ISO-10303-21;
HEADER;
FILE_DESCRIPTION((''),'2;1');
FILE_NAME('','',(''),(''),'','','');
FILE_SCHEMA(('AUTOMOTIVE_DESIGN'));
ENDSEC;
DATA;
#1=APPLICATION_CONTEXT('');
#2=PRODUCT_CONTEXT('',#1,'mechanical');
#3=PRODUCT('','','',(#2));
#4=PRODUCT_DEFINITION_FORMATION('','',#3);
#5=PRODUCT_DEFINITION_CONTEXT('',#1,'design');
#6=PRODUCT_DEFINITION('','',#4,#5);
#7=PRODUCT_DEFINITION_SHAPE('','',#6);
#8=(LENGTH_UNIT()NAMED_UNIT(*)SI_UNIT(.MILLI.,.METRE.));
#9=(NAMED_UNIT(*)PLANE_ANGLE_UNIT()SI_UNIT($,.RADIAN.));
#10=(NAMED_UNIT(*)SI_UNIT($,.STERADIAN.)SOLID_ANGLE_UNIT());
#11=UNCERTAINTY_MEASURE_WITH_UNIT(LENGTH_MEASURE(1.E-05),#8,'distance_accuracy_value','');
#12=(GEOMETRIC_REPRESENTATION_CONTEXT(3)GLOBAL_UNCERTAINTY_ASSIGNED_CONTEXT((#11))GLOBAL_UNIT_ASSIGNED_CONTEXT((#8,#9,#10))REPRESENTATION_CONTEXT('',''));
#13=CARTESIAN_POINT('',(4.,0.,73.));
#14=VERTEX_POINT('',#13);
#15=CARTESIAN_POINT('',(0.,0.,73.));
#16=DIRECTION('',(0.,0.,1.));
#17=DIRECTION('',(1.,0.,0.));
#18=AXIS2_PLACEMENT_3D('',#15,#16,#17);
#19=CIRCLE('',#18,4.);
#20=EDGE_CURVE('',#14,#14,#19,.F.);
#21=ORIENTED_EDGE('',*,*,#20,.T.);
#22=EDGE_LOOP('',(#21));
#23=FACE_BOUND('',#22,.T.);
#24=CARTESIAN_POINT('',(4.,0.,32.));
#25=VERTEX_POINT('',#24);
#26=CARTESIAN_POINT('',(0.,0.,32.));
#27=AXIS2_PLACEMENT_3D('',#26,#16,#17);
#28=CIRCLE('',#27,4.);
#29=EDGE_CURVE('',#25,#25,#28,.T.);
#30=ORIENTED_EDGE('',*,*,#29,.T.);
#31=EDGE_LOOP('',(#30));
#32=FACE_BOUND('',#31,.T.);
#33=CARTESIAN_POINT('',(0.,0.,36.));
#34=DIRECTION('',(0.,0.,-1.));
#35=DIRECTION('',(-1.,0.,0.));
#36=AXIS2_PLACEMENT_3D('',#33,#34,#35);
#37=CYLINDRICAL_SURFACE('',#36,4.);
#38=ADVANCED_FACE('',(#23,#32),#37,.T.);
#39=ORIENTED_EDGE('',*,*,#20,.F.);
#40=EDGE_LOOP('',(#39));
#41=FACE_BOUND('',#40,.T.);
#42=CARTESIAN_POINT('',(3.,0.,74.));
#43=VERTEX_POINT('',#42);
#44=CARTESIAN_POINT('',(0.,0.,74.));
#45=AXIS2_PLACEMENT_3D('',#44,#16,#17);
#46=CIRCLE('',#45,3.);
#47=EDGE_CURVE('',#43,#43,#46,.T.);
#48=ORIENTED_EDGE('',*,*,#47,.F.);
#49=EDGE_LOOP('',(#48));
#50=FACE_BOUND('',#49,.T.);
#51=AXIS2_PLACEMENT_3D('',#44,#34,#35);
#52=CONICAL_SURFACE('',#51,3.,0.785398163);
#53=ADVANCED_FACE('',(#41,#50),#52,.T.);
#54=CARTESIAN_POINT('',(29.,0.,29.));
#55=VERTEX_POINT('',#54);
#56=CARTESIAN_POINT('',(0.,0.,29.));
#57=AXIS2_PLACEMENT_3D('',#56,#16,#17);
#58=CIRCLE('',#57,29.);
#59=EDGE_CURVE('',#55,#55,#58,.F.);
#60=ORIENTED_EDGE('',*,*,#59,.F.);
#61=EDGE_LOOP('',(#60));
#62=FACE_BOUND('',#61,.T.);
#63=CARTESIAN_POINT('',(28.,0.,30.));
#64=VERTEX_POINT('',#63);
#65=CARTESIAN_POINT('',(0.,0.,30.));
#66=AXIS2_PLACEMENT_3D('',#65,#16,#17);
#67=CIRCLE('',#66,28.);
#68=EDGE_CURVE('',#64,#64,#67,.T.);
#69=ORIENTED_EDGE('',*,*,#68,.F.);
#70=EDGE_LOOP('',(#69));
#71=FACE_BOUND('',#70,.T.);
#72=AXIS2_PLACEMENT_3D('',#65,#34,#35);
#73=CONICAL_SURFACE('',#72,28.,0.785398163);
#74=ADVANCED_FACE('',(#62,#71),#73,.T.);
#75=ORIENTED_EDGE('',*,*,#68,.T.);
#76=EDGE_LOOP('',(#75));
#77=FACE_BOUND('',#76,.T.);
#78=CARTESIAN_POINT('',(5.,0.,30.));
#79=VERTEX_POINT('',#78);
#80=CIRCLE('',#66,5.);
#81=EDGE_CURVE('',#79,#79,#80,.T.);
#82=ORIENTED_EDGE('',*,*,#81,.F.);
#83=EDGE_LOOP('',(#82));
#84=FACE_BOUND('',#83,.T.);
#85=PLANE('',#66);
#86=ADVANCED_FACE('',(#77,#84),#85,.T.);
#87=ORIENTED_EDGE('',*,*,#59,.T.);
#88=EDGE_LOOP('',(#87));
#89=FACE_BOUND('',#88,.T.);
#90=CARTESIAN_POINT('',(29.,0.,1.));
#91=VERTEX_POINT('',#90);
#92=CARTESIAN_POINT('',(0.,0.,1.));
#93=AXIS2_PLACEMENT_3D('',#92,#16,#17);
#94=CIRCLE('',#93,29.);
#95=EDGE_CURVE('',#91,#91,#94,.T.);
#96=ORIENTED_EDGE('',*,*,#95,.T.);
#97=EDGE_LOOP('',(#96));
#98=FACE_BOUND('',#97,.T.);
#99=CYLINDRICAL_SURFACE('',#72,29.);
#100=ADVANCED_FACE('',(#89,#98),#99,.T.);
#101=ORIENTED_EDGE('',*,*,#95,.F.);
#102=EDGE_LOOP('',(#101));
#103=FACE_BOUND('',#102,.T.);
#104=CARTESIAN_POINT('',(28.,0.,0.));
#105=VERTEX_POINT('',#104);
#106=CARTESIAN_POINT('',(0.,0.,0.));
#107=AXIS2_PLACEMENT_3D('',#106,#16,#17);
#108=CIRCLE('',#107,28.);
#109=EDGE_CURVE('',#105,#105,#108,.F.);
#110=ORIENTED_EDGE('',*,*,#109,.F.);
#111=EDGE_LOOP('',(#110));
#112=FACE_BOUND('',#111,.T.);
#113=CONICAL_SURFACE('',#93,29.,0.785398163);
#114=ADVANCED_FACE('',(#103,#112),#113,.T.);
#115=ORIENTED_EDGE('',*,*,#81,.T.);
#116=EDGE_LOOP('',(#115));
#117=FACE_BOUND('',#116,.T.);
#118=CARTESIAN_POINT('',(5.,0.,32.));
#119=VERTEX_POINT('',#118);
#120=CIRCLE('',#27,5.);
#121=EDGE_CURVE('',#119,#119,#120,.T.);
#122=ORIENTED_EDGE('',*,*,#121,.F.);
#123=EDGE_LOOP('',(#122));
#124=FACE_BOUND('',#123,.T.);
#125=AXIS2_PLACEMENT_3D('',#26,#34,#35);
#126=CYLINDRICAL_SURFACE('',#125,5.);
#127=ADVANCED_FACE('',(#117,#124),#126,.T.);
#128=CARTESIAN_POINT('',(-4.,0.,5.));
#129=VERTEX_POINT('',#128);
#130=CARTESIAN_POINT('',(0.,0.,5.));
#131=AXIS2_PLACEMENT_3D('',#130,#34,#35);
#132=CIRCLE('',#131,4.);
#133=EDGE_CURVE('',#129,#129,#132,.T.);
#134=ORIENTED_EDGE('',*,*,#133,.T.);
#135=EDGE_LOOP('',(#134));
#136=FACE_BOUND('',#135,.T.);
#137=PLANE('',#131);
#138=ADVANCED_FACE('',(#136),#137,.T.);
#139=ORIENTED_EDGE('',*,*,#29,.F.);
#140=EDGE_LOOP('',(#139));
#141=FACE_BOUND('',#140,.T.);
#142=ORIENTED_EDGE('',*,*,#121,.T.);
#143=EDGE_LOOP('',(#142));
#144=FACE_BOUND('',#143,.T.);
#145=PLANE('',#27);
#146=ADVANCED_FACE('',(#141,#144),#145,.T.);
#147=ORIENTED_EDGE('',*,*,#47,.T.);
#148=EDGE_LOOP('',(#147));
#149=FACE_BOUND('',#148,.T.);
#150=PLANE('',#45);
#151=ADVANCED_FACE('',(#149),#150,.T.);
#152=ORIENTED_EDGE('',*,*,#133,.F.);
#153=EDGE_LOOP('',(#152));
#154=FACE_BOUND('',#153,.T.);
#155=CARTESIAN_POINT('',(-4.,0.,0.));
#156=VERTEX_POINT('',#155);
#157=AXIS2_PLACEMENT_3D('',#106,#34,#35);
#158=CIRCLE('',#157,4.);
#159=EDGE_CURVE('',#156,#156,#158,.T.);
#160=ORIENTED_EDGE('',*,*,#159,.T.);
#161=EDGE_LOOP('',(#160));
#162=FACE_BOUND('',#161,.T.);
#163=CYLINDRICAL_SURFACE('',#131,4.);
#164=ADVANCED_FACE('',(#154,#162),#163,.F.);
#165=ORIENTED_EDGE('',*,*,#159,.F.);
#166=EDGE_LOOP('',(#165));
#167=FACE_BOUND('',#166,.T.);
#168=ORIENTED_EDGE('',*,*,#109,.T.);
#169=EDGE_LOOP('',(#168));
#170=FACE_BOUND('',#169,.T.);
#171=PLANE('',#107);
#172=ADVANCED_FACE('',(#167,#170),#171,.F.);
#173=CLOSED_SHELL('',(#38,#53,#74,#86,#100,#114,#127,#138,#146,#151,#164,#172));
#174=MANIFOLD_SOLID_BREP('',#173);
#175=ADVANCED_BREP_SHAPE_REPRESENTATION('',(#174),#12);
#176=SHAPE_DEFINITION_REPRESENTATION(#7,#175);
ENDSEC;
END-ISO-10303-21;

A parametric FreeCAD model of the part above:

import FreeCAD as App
import Part
import Sketcher
from FreeCAD import Vector


def edges_at(feature, points):
    """Names of the edges that pass closest to the given points."""
    edges = feature.Shape.Edges
    near = lambda p: min(range(len(edges)), key=lambda i: edges[i].distToShape(Part.Vertex(*p))[0])
    return sorted({f"Edge{near(p) + 1}" for p in points})

doc = App.newDocument("Part")
body = doc.addObject("PartDesign::Body", "Body")

sketch1 = body.newObject("Sketcher::SketchObject", "Sketch")
sketch1.AttachmentSupport = (doc.getObject("XY_Plane"), [""])
sketch1.MapMode = "FlatFace"
sketch1.addGeometry(Part.Circle(Vector(0, 0, 0), Vector(0, 0, 1), 29), False)
sketch1.addConstraint([
    Sketcher.Constraint("Coincident", 0, 3, -1, 1),
    Sketcher.Constraint("Diameter", 0, 58.0),
])
pad1 = body.newObject("PartDesign::Pad", "Pad")
pad1.Profile = sketch1
pad1.Length = 30

sketch2 = body.newObject("Sketcher::SketchObject", "Sketch001")
sketch2.AttachmentSupport = (doc.getObject("XY_Plane"), [""])
sketch2.MapMode = "FlatFace"
sketch2.AttachmentOffset = App.Placement(Vector(0, 0, 30), App.Rotation())
sketch2.addGeometry(Part.Circle(Vector(0, 0, 0), Vector(0, 0, 1), 4), False)
sketch2.addConstraint([
    Sketcher.Constraint("Coincident", 0, 3, -1, 1),
    Sketcher.Constraint("Diameter", 0, 8.0),
])
pad2 = body.newObject("PartDesign::Pad", "Pad001")
pad2.Profile = sketch2
pad2.Length = 6

sketch3 = body.newObject("Sketcher::SketchObject", "Sketch002")
sketch3.AttachmentSupport = (doc.getObject("XY_Plane"), [""])
sketch3.MapMode = "FlatFace"
sketch3.AttachmentOffset = App.Placement(Vector(0, 0, 30), App.Rotation())
sketch3.addGeometry(Part.Circle(Vector(0, 0, 0), Vector(0, 0, 1), 5), False)
sketch3.addConstraint([
    Sketcher.Constraint("Coincident", 0, 3, -1, 1),
    Sketcher.Constraint("Diameter", 0, 10.0),
])
pad3 = body.newObject("PartDesign::Pad", "Pad002")
pad3.Profile = sketch3
pad3.Length = 2

sketch4 = body.newObject("Sketcher::SketchObject", "Sketch003")
sketch4.AttachmentSupport = (doc.getObject("XY_Plane"), [""])
sketch4.MapMode = "FlatFace"
sketch4.addGeometry(Part.Circle(Vector(0, 0, 0), Vector(0, 0, 1), 4), False)
sketch4.addConstraint([
    Sketcher.Constraint("Coincident", 0, 3, -1, 1),
    Sketcher.Constraint("Diameter", 0, 8.0),
])
pocket1 = body.newObject("PartDesign::Pocket", "Pocket")
pocket1.Profile = sketch4
pocket1.Length = 5
pocket1.Reversed = True
doc.recompute()

chamfer = body.newObject("PartDesign::Chamfer", "Chamfer")
chamfer.Base = (pocket1, edges_at(pocket1, [(-29, 0, 0), (-29, 0, 30)]))
chamfer.Size = 1

sketch5 = body.newObject("Sketcher::SketchObject", "Sketch004")
sketch5.AttachmentSupport = (doc.getObject("XY_Plane"), [""])
sketch5.MapMode = "FlatFace"
sketch5.AttachmentOffset = App.Placement(Vector(0, 0, 36), App.Rotation())
sketch5.addGeometry(Part.Circle(Vector(0, 0, 0), Vector(0, 0, 1), 4), False)
sketch5.addConstraint([
    Sketcher.Constraint("Coincident", 0, 3, -1, 1),
    Sketcher.Constraint("Diameter", 0, 8.0),
])
pad4 = body.newObject("PartDesign::Pad", "Pad003")
pad4.Profile = sketch5
pad4.Length = 10

sketch6 = body.newObject("Sketcher::SketchObject", "Sketch005")
sketch6.AttachmentSupport = (doc.getObject("XY_Plane"), [""])
sketch6.MapMode = "FlatFace"
sketch6.AttachmentOffset = App.Placement(Vector(0, 0, 46), App.Rotation())
sketch6.addGeometry(Part.Circle(Vector(0, 0, 0), Vector(0, 0, 1), 4), False)
sketch6.addConstraint([
    Sketcher.Constraint("Coincident", 0, 3, -1, 1),
    Sketcher.Constraint("Diameter", 0, 8.0),
])
pad5 = body.newObject("PartDesign::Pad", "Pad004")
pad5.Profile = sketch6
pad5.Length = 28
doc.recompute()

chamfer2 = body.newObject("PartDesign::Chamfer", "Chamfer001")
chamfer2.Base = (pad5, edges_at(pad5, [(-4, 0, 74)]))
chamfer2.Size = 1

doc.recompute()
